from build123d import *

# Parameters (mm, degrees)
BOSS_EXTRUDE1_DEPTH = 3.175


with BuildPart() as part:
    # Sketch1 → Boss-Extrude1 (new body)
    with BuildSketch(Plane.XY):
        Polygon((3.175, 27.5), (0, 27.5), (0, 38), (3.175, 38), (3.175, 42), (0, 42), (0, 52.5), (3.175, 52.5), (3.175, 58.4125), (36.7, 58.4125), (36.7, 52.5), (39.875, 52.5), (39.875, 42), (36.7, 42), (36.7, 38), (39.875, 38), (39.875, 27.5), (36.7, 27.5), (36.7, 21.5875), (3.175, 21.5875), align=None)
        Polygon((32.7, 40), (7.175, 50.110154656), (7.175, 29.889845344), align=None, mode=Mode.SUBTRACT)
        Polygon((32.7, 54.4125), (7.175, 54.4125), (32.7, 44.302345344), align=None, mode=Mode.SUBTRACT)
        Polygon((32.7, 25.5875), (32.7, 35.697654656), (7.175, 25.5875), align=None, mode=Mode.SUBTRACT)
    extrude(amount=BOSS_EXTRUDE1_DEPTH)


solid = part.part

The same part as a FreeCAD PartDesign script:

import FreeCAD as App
import Part
import Sketcher

doc = App.newDocument("Part")
params = doc.addObject("Spreadsheet::Sheet", "Params")
for row, (alias, value) in enumerate([
    ("sketch1_height", "4 mm"),
    ("sketch1_height2", "10.5 mm"),
    ("pad1_length", "3.175 mm"),
], start=1):
    params.set(f"A{row}", alias)
    params.set(f"B{row}", "=" + value)
    params.setAlias(f"B{row}", alias)

body = doc.addObject("PartDesign::Body", "Body")

sketch1 = body.newObject("Sketcher::SketchObject", "Sketch")
sketch1.AttachmentSupport = (doc.getObject("XY_Plane"), [""])
sketch1.MapMode = "FlatFace"
sketch1.addGeometry([
    Part.LineSegment(App.Vector(0, 27.5, 0), App.Vector(3.2, 27.5, 0)),
    Part.LineSegment(App.Vector(3.2, 27.5, 0), App.Vector(3.2, 21.6, 0)),
    Part.LineSegment(App.Vector(3.2, 21.6, 0), App.Vector(36.7, 21.6, 0)),
    Part.LineSegment(App.Vector(36.7, 21.6, 0), App.Vector(36.7, 27.5, 0)),
    Part.LineSegment(App.Vector(36.7, 27.5, 0), App.Vector(39.9, 27.5, 0)),
    Part.LineSegment(App.Vector(39.9, 27.5, 0), App.Vector(39.9, 38, 0)),
    Part.LineSegment(App.Vector(39.9, 38, 0), App.Vector(36.7, 38, 0)),
    Part.LineSegment(App.Vector(36.7, 38, 0), App.Vector(36.7, 42, 0)),
    Part.LineSegment(App.Vector(36.7, 42, 0), App.Vector(39.9, 42, 0)),
    Part.LineSegment(App.Vector(39.9, 42, 0), App.Vector(39.9, 52.5, 0)),
    Part.LineSegment(App.Vector(39.9, 52.5, 0), App.Vector(36.7, 52.5, 0)),
    Part.LineSegment(App.Vector(36.7, 52.5, 0), App.Vector(36.7, 58.4, 0)),
    Part.LineSegment(App.Vector(36.7, 58.4, 0), App.Vector(3.2, 58.4, 0)),
    Part.LineSegment(App.Vector(3.2, 58.4, 0), App.Vector(3.2, 52.5, 0)),
    Part.LineSegment(App.Vector(3.2, 52.5, 0), App.Vector(0, 52.5, 0)),
    Part.LineSegment(App.Vector(0, 52.5, 0), App.Vector(0, 42, 0)),
    Part.LineSegment(App.Vector(0, 42, 0), App.Vector(3.2, 42, 0)),
    Part.LineSegment(App.Vector(3.2, 42, 0), App.Vector(3.2, 38, 0)),
    Part.LineSegment(App.Vector(3.2, 38, 0), App.Vector(0, 38, 0)),
    Part.LineSegment(App.Vector(0, 38, 0), App.Vector(0, 27.5, 0)),
    Part.LineSegment(App.Vector(32.7, 25.6, 0), App.Vector(7.2, 25.6, 0)),
    Part.LineSegment(App.Vector(7.2, 25.6, 0), App.Vector(32.7, 35.7, 0)),
    Part.LineSegment(App.Vector(32.7, 35.7, 0), App.Vector(32.7, 25.6, 0)),
    Part.LineSegment(App.Vector(32.7, 40, 0), App.Vector(7.2, 29.9, 0)),
    Part.LineSegment(App.Vector(7.2, 29.9, 0), App.Vector(7.2, 50.1, 0)),
    Part.LineSegment(App.Vector(7.2, 50.1, 0), App.Vector(32.7, 40, 0)),
    Part.LineSegment(App.Vector(32.7, 54.4, 0), App.Vector(32.7, 44.3, 0)),
    Part.LineSegment(App.Vector(32.7, 44.3, 0), App.Vector(7.2, 54.4, 0)),
    Part.LineSegment(App.Vector(7.2, 54.4, 0), App.Vector(32.7, 54.4, 0)),
], False)
sketch1.addConstraint([
    Sketcher.Constraint("Coincident", 0, 2, 1, 1),
    Sketcher.Constraint("Coincident", 1, 2, 2, 1),
    Sketcher.Constraint("Coincident", 2, 2, 3, 1),
    Sketcher.Constraint("Coincident", 3, 2, 4, 1),
    Sketcher.Constraint("Coincident", 4, 2, 5, 1),
    Sketcher.Constraint("Coincident", 5, 2, 6, 1),
    Sketcher.Constraint("Coincident", 6, 2, 7, 1),
    Sketcher.Constraint("Coincident", 7, 2, 8, 1),
    Sketcher.Constraint("Coincident", 8, 2, 9, 1),
    Sketcher.Constraint("Coincident", 9, 2, 10, 1),
    Sketcher.Constraint("Coincident", 10, 2, 11, 1),
    Sketcher.Constraint("Coincident", 11, 2, 12, 1),
    Sketcher.Constraint("Coincident", 12, 2, 13, 1),
    Sketcher.Constraint("Coincident", 13, 2, 14, 1),
    Sketcher.Constraint("Coincident", 14, 2, 15, 1),
    Sketcher.Constraint("Coincident", 15, 2, 16, 1),
    Sketcher.Constraint("Coincident", 16, 2, 17, 1),
    Sketcher.Constraint("Coincident", 17, 2, 18, 1),
    Sketcher.Constraint("Coincident", 18, 2, 19, 1),
    Sketcher.Constraint("Coincident", 19, 2, 0, 1),
    Sketcher.Constraint("Coincident", 20, 2, 21, 1),
    Sketcher.Constraint("Coincident", 21, 2, 22, 1),
    Sketcher.Constraint("Coincident", 22, 2, 20, 1),
    Sketcher.Constraint("Coincident", 23, 2, 24, 1),
    Sketcher.Constraint("Coincident", 24, 2, 25, 1),
    Sketcher.Constraint("Coincident", 25, 2, 23, 1),
    Sketcher.Constraint("Coincident", 26, 2, 27, 1),
    Sketcher.Constraint("Coincident", 27, 2, 28, 1),
    Sketcher.Constraint("Coincident", 28, 2, 26, 1),
    Sketcher.Constraint("Horizontal", 0),
    Sketcher.Constraint("Vertical", 1),
    Sketcher.Constraint("Horizontal", 2),
    Sketcher.Constraint("Vertical", 3),
    Sketcher.Constraint("Horizontal", 4),
    Sketcher.Constraint("Vertical", 5),
    Sketcher.Constraint("Horizontal", 6),
    Sketcher.Constraint("Vertical", 7),
    Sketcher.Constraint("Horizontal", 8),
    Sketcher.Constraint("Vertical", 9),
    Sketcher.Constraint("Horizontal", 10),
    Sketcher.Constraint("Vertical", 11),
    Sketcher.Constraint("Horizontal", 12),
    Sketcher.Constraint("Vertical", 13),
    Sketcher.Constraint("Horizontal", 14),
    Sketcher.Constraint("Vertical", 15),
    Sketcher.Constraint("Horizontal", 16),
    Sketcher.Constraint("Vertical", 17),
    Sketcher.Constraint("Horizontal", 18),
    Sketcher.Constraint("Vertical", 19),
    Sketcher.Constraint("Horizontal", 20),
    Sketcher.Constraint("Vertical", 22),
    Sketcher.Constraint("Vertical", 24),
    Sketcher.Constraint("Vertical", 26),
    Sketcher.Constraint("Horizontal", 28),
    Sketcher.Constraint("PointOnObject", 14, 2, -2),
    Sketcher.Constraint("PointOnObject", 18, 2, -2),
    Sketcher.Constraint("Parallel", 21, 23),
    Sketcher.Constraint("Parallel", 25, 27),
    Sketcher.Constraint("Horizontal", 0, 2, 3, 2),
    Sketcher.Constraint("Horizontal", 10, 2, 13, 2),
    Sketcher.Constraint("Horizontal", 8, 2, 15, 2),
    Sketcher.Constraint("Horizontal", 6, 2, 17, 2),
    Sketcher.Constraint("Vertical", 3, 2, 6, 2),
    Sketcher.Constraint("Vertical", 5, 2, 8, 2),
    Sketcher.Constraint("Vertical", 7, 2, 10, 2),
    Sketcher.Constraint("Vertical", 1, 2, 12, 2),
    Sketcher.Constraint("Vertical", 13, 2, 16, 2),
    Sketcher.Constraint("Vertical", 20, 2, 23, 2),
    Sketcher.Constraint("Vertical", 22, 2, 25, 2),
    Sketcher.Constraint("Vertical", 25, 2, 26, 2),
    Sketcher.Constraint("Vertical", 24, 2, 27, 2),
    Sketcher.Constraint("Equal", 0, 4),
    Sketcher.Constraint("Equal", 5, 9),
    Sketcher.Constraint("Equal", 3, 11),
    Sketcher.Constraint("Equal", 22, 26),
    Sketcher.Constraint("DistanceY", 7, 1, 7, 2, 4.0),
    Sketcher.Constraint("DistanceY", 5, 1, 5, 2, 10.5),
    Sketcher.Constraint("DistanceY", -1, 1, 5, 2, 38.0),
    Sketcher.Constraint("DistanceY", -1, 1, 25, 2, 40.0),
    Sketcher.Constraint("DistanceX", 0, 2, 20, 2, 4.0),
    Sketcher.Constraint("DistanceY", 1, 2, 20, 2, 4.0),
    Sketcher.Constraint("DistanceX", 21, 2, 6, 2, 4.0),
    Sketcher.Constraint("DistanceY", 27, 2, 12, 2, 4.0),
    Sketcher.Constraint("DistanceX", -1, 1, 2, 2, 36.7),
    Sketcher.Constraint("DistanceX", 0, 1, 0, 2, 3.175),
    Sketcher.Constraint("DistanceY", 1, 2, 1, 1, 5.9125),
    Sketcher.Constraint("DistanceY", 24, 1, 24, 2, 20.220309),
])
sketch1.setExpression("Constraints[75]", "Params.sketch1_height")
sketch1.setExpression("Constraints[76]", "Params.sketch1_height2")
pad1 = body.newObject("PartDesign::Pad", "Pad")
pad1.Profile = sketch1
pad1.setExpression("Length", "Params.pad1_length")

doc.recompute()
